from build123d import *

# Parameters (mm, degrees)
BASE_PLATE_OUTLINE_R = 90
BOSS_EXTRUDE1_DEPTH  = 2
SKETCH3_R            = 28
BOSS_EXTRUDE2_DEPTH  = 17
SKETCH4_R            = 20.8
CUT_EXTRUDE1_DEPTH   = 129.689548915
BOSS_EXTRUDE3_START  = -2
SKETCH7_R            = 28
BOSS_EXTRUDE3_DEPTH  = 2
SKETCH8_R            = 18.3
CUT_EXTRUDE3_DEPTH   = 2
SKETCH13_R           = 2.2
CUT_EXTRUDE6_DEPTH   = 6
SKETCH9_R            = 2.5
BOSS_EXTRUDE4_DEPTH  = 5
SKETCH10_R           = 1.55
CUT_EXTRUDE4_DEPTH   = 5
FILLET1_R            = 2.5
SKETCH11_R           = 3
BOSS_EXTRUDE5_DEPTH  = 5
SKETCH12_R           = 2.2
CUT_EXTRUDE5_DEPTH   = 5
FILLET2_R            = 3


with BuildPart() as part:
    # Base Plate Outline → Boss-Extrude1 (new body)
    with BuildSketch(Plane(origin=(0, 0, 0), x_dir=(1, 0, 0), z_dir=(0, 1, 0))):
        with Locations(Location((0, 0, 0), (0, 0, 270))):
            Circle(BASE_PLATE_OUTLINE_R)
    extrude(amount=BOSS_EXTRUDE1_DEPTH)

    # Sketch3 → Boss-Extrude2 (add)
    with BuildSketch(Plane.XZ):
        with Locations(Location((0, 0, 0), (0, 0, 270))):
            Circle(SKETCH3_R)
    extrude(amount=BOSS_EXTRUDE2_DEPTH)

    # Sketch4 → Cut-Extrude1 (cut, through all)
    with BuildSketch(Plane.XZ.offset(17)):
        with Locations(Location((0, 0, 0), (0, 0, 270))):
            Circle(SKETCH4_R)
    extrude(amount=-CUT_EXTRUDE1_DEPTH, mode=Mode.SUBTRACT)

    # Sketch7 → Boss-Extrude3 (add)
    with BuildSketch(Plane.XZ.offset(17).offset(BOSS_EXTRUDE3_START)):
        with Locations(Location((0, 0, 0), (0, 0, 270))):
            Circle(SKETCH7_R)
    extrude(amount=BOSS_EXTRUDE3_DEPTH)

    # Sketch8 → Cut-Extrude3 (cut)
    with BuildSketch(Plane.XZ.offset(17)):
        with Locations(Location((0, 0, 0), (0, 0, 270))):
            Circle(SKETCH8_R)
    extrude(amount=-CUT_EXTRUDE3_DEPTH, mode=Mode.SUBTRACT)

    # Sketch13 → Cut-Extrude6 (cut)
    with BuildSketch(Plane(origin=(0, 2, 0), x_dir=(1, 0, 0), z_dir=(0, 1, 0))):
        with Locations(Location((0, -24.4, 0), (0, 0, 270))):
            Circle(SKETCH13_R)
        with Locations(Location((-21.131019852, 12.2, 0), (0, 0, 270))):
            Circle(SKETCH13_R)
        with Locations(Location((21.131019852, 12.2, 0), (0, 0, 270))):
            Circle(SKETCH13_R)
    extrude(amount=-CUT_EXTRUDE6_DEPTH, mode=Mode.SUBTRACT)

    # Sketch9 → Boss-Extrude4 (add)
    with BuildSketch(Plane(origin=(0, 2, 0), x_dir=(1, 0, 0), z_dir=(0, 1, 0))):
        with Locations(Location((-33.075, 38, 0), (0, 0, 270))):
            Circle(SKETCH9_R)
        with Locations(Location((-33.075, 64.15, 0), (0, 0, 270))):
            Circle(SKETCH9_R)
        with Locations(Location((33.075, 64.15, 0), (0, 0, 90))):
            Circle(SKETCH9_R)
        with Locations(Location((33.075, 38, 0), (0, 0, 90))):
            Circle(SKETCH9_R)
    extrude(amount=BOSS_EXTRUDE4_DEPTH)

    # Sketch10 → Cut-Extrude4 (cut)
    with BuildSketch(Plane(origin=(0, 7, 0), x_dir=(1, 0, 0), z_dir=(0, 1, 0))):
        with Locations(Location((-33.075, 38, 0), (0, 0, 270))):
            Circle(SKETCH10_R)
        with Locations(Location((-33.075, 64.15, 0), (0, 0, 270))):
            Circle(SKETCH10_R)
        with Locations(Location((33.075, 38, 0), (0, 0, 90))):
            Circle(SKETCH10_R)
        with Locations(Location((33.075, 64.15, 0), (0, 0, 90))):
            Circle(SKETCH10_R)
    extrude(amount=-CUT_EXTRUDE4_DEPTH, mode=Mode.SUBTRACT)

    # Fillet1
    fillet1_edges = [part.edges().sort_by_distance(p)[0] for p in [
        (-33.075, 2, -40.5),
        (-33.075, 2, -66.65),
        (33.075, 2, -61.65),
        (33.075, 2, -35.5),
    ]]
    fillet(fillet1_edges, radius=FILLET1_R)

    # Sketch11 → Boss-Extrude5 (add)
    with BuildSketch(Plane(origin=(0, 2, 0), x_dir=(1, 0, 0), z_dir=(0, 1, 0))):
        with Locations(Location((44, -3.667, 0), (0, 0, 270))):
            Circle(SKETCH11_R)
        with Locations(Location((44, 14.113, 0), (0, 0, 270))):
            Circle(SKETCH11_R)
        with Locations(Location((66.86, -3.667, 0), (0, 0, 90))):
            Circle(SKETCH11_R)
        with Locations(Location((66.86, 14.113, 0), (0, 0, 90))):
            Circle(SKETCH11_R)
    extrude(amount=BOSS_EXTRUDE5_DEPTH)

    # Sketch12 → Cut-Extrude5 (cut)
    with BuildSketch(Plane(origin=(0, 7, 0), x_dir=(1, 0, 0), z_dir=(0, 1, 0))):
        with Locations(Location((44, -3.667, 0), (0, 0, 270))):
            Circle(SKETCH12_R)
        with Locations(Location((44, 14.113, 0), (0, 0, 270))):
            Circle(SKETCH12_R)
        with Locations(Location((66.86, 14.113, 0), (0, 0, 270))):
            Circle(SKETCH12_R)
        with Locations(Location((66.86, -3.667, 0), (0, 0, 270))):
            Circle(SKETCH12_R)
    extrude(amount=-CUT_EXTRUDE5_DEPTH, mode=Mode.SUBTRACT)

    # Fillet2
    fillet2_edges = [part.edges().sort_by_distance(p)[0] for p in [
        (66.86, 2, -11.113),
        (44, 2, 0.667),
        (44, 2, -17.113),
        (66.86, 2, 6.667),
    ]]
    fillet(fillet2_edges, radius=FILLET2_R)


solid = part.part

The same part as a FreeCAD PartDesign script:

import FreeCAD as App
import Part
import Sketcher

V = App.Vector
Q = App.Units.Quantity


def edges_at(feature, points):
    """Names of the edges that pass closest to the given points."""
    edges = feature.Shape.Edges
    near = lambda p: min(range(len(edges)), key=lambda i: edges[i].distToShape(Part.Vertex(*p))[0])
    return sorted({f"Edge{near(p) + 1}" for p in points})

doc = App.newDocument("Part")
body = doc.addObject("PartDesign::Body", "Body")

sketch1 = body.newObject("Sketcher::SketchObject", "Sketch")
sketch1.AttachmentSupport = (doc.getObject("XZ_Plane"), [""])
sketch1.MapMode = "FlatFace"
sketch1.addGeometry(Part.Circle(V(0, 0, 0), V(0, 0, 1), 90), False)
sketch1.addConstraint([
    Sketcher.Constraint("Coincident", 0, 3, -1, 1),
    Sketcher.Constraint("Diameter", 0, Q("180 mm")),
])
pad1 = body.newObject("PartDesign::Pad", "Pad")
pad1.Profile = sketch1
pad1.Length = 2
pad1.Reversed = True

sketch2 = body.newObject("Sketcher::SketchObject", "Sketch001")
sketch2.AttachmentSupport = (doc.getObject("XZ_Plane"), [""])
sketch2.MapMode = "FlatFace"
sketch2.addGeometry(Part.Circle(V(0, 0, 0), V(0, 0, 1), 28), False)
sketch2.addConstraint([
    Sketcher.Constraint("Coincident", 0, 3, -1, 1),
    Sketcher.Constraint("Diameter", 0, Q("56 mm")),
])
pad2 = body.newObject("PartDesign::Pad", "Pad001")
pad2.Profile = sketch2
pad2.Length = 17

sketch3 = body.newObject("Sketcher::SketchObject", "Sketch002")
sketch3.AttachmentSupport = (doc.getObject("XZ_Plane"), [""])
sketch3.MapMode = "FlatFace"
sketch3.AttachmentOffset = App.Placement(V(0, 0, 17), App.Rotation())
sketch3.addGeometry(Part.Circle(V(0, 0, 0), V(0, 0, 1), 21), False)
sketch3.addConstraint([
    Sketcher.Constraint("Coincident", 0, 3, -1, 1),
    Sketcher.Constraint("Diameter", 0, Q("41.6 mm")),
])
pocket1 = body.newObject("PartDesign::Pocket", "Pocket")
pocket1.Profile = sketch3
pocket1.Type = "ThroughAll"

sketch4 = body.newObject("Sketcher::SketchObject", "Sketch003")
sketch4.AttachmentSupport = (doc.getObject("XZ_Plane"), [""])
sketch4.MapMode = "FlatFace"
sketch4.AttachmentOffset = App.Placement(V(0, 0, 15), App.Rotation())
sketch4.addGeometry(Part.Circle(V(0, 0, 0), V(0, 0, 1), 28), False)
sketch4.addConstraint([
    Sketcher.Constraint("Coincident", 0, 3, -1, 1),
    Sketcher.Constraint("Diameter", 0, Q("56 mm")),
])
pad3 = body.newObject("PartDesign::Pad", "Pad002")
pad3.Profile = sketch4
pad3.Length = 2

sketch5 = body.newObject("Sketcher::SketchObject", "Sketch004")
sketch5.AttachmentSupport = (doc.getObject("XZ_Plane"), [""])
sketch5.MapMode = "FlatFace"
sketch5.AttachmentOffset = App.Placement(V(0, 0, 17), App.Rotation())
sketch5.addGeometry(Part.Circle(V(0, 0, 0), V(0, 0, 1), 18), False)
sketch5.addConstraint([
    Sketcher.Constraint("Coincident", 0, 3, -1, 1),
    Sketcher.Constraint("Diameter", 0, Q("36.6 mm")),
])
pocket2 = body.newObject("PartDesign::Pocket", "Pocket001")
pocket2.Profile = sketch5
pocket2.Length = 2

sketch6 = body.newObject("Sketcher::SketchObject", "Sketch005")
sketch6.AttachmentSupport = (doc.getObject("XZ_Plane"), [""])
sketch6.MapMode = "FlatFace"
sketch6.AttachmentOffset = App.Placement(V(0, 0, -2), App.Rotation())
sketch6.addGeometry([
    Part.Circle(V(0, 24.4, 0), V(0, 0, 1), 2.2),
    Part.Circle(V(-21.1, -12.2, 0), V(0, 0, 1), 2.2),
    Part.Circle(V(21.1, -12.2, 0), V(0, 0, 1), 2.2),
], False)
sketch6.addConstraint([
    Sketcher.Constraint("Equal", 0, 1),
    Sketcher.Constraint("Equal", 1, 2),
    Sketcher.Constraint("Symmetric", 1, 3, 2, 3, -2),
    Sketcher.Constraint("PointOnObject", 0, 3, -2),
    Sketcher.Constraint("Diameter", 0, Q("4.4 mm")),
    Sketcher.Constraint("DistanceY", -1, 1, 0, 3, Q("24.4 mm")),
    Sketcher.Constraint("DistanceY", 1, 3, -1, 1, Q("12.2 mm")),
    Sketcher.Constraint("DistanceX", 1, 3, -1, 1, Q("21.13102 mm")),
])
pocket3 = body.newObject("PartDesign::Pocket", "Pocket002")
pocket3.Profile = sketch6
pocket3.Length = 6
pocket3.Reversed = True

sketch7 = body.newObject("Sketcher::SketchObject", "Sketch006")
sketch7.AttachmentSupport = (doc.getObject("XZ_Plane"), [""])
sketch7.MapMode = "FlatFace"
sketch7.AttachmentOffset = App.Placement(V(0, 0, -2), App.Rotation())
sketch7.addGeometry([
    Part.Circle(V(-33.1, -38, 0), V(0, 0, 1), 2.5),
    Part.Circle(V(-33.1, -64.2, 0), V(0, 0, 1), 2.5),
    Part.Circle(V(33.1, -64.2, 0), V(0, 0, 1), 2.5),
    Part.Circle(V(33.1, -38, 0), V(0, 0, 1), 2.5),
], False)
sketch7.addConstraint([
    Sketcher.Constraint("Equal", 0, 1),
    Sketcher.Constraint("Equal", 1, 2),
    Sketcher.Constraint("Equal", 2, 3),
    Sketcher.Constraint("Symmetric", 1, 3, 2, 3, -2),
    Sketcher.Constraint("Symmetric", 0, 3, 3, 3, -2),
    Sketcher.Constraint("Vertical", 0, 3, 1, 3),
    Sketcher.Constraint("Diameter", 0, Q("5 mm")),
    Sketcher.Constraint("DistanceY", 0, 3, -1, 1, Q("38 mm")),
    Sketcher.Constraint("DistanceY", 1, 3, -1, 1, Q("64.15 mm")),
    Sketcher.Constraint("DistanceX", 1, 3, 2, 3, Q("66.15 mm")),
])
pad4 = body.newObject("PartDesign::Pad", "Pad003")
pad4.Profile = sketch7
pad4.Length = 5
pad4.Reversed = True

sketch8 = body.newObject("Sketcher::SketchObject", "Sketch007")
sketch8.AttachmentSupport = (doc.getObject("XZ_Plane"), [""])
sketch8.MapMode = "FlatFace"
sketch8.AttachmentOffset = App.Placement(V(0, 0, -7), App.Rotation())
sketch8.addGeometry([
    Part.Circle(V(-33.1, -38, 0), V(0, 0, 1), 1.6),
    Part.Circle(V(-33.1, -64.2, 0), V(0, 0, 1), 1.6),
    Part.Circle(V(33.1, -38, 0), V(0, 0, 1), 1.6),
    Part.Circle(V(33.1, -64.2, 0), V(0, 0, 1), 1.6),
], False)
sketch8.addConstraint([
    Sketcher.Constraint("Equal", 0, 1),
    Sketcher.Constraint("Equal", 1, 2),
    Sketcher.Constraint("Equal", 2, 3),
    Sketcher.Constraint("Symmetric", 0, 3, 2, 3, -2),
    Sketcher.Constraint("Symmetric", 1, 3, 3, 3, -2),
    Sketcher.Constraint("Vertical", 0, 3, 1, 3),
    Sketcher.Constraint("Diameter", 0, Q("3.1 mm")),
    Sketcher.Constraint("DistanceY", 0, 3, -1, 1, Q("38 mm")),
    Sketcher.Constraint("DistanceY", 1, 3, -1, 1, Q("64.15 mm")),
    Sketcher.Constraint("DistanceX", 0, 3, 2, 3, Q("66.15 mm")),
])
pocket4 = body.newObject("PartDesign::Pocket", "Pocket003")
pocket4.Profile = sketch8
pocket4.Length = 5
pocket4.Reversed = True
doc.recompute()

fillet = body.newObject("PartDesign::Fillet", "Fillet")
fillet.Base = (pocket4, edges_at(pocket4, [
    (-33.075, 2, -40.5),
    (-33.075, 2, -66.65),
    (33.075, 2, -61.65),
    (33.075, 2, -35.5),
]))
fillet.Radius = 2.5

sketch9 = body.newObject("Sketcher::SketchObject", "Sketch008")
sketch9.AttachmentSupport = (doc.getObject("XZ_Plane"), [""])
sketch9.MapMode = "FlatFace"
sketch9.AttachmentOffset = App.Placement(V(0, 0, -2), App.Rotation())
sketch9.addGeometry([
    Part.Circle(V(44, 3.7, 0), V(0, 0, 1), 3),
    Part.Circle(V(44, -14.1, 0), V(0, 0, 1), 3),
    Part.Circle(V(66.9, 3.7, 0), V(0, 0, 1), 3),
    Part.Circle(V(66.9, -14.1, 0), V(0, 0, 1), 3),
], False)
sketch9.addConstraint([
    Sketcher.Constraint("Equal", 0, 1),
    Sketcher.Constraint("Equal", 1, 2),
    Sketcher.Constraint("Equal", 2, 3),
    Sketcher.Constraint("Horizontal", 0, 3, 2, 3),
    Sketcher.Constraint("Horizontal", 1, 3, 3, 3),
    Sketcher.Constraint("Vertical", 0, 3, 1, 3),
    Sketcher.Constraint("Vertical", 2, 3, 3, 3),
    Sketcher.Constraint("Diameter", 0, Q("6 mm")),
    Sketcher.Constraint("DistanceX", -1, 1, 0, 3, Q("44 mm")),
    Sketcher.Constraint("DistanceX", -1, 1, 2, 3, Q("66.86 mm")),
    Sketcher.Constraint("DistanceY", 1, 3, 0, 3, Q("17.78 mm")),
    Sketcher.Constraint("DistanceY", -1, 1, 0, 3, Q("3.667 mm")),
])
pad5 = body.newObject("PartDesign::Pad", "Pad004")
pad5.Profile = sketch9
pad5.Length = 5
pad5.Reversed = True

sketch10 = body.newObject("Sketcher::SketchObject", "Sketch009")
sketch10.AttachmentSupport = (doc.getObject("XZ_Plane"), [""])
sketch10.MapMode = "FlatFace"
sketch10.AttachmentOffset = App.Placement(V(0, 0, -7), App.Rotation())
sketch10.addGeometry([
    Part.Circle(V(44, 3.7, 0), V(0, 0, 1), 2.2),
    Part.Circle(V(44, -14.1, 0), V(0, 0, 1), 2.2),
    Part.Circle(V(66.9, -14.1, 0), V(0, 0, 1), 2.2),
    Part.Circle(V(66.9, 3.7, 0), V(0, 0, 1), 2.2),
], False)
sketch10.addConstraint([
    Sketcher.Constraint("Equal", 0, 1),
    Sketcher.Constraint("Equal", 1, 2),
    Sketcher.Constraint("Equal", 2, 3),
    Sketcher.Constraint("Horizontal", 1, 3, 2, 3),
    Sketcher.Constraint("Horizontal", 0, 3, 3, 3),
    Sketcher.Constraint("Vertical", 0, 3, 1, 3),
    Sketcher.Constraint("Vertical", 2, 3, 3, 3),
    Sketcher.Constraint("Diameter", 0, Q("4.4 mm")),
    Sketcher.Constraint("DistanceX", -1, 1, 0, 3, Q("44 mm")),
    Sketcher.Constraint("DistanceX", -1, 1, 2, 3, Q("66.86 mm")),
    Sketcher.Constraint("DistanceY", 1, 3, 0, 3, Q("17.78 mm")),
    Sketcher.Constraint("DistanceY", -1, 1, 0, 3, Q("3.667 mm")),
])
pocket5 = body.newObject("PartDesign::Pocket", "Pocket004")
pocket5.Profile = sketch10
pocket5.Length = 5
pocket5.Reversed = True
doc.recompute()

fillet2 = body.newObject("PartDesign::Fillet", "Fillet001")
fillet2.Base = (pocket5, edges_at(pocket5, [
    (66.86, 2, -11.113),
    (44, 2, 0.667),
    (44, 2, -17.113),
    (66.86, 2, 6.667),
]))
fillet2.Radius = 3

doc.recompute()
